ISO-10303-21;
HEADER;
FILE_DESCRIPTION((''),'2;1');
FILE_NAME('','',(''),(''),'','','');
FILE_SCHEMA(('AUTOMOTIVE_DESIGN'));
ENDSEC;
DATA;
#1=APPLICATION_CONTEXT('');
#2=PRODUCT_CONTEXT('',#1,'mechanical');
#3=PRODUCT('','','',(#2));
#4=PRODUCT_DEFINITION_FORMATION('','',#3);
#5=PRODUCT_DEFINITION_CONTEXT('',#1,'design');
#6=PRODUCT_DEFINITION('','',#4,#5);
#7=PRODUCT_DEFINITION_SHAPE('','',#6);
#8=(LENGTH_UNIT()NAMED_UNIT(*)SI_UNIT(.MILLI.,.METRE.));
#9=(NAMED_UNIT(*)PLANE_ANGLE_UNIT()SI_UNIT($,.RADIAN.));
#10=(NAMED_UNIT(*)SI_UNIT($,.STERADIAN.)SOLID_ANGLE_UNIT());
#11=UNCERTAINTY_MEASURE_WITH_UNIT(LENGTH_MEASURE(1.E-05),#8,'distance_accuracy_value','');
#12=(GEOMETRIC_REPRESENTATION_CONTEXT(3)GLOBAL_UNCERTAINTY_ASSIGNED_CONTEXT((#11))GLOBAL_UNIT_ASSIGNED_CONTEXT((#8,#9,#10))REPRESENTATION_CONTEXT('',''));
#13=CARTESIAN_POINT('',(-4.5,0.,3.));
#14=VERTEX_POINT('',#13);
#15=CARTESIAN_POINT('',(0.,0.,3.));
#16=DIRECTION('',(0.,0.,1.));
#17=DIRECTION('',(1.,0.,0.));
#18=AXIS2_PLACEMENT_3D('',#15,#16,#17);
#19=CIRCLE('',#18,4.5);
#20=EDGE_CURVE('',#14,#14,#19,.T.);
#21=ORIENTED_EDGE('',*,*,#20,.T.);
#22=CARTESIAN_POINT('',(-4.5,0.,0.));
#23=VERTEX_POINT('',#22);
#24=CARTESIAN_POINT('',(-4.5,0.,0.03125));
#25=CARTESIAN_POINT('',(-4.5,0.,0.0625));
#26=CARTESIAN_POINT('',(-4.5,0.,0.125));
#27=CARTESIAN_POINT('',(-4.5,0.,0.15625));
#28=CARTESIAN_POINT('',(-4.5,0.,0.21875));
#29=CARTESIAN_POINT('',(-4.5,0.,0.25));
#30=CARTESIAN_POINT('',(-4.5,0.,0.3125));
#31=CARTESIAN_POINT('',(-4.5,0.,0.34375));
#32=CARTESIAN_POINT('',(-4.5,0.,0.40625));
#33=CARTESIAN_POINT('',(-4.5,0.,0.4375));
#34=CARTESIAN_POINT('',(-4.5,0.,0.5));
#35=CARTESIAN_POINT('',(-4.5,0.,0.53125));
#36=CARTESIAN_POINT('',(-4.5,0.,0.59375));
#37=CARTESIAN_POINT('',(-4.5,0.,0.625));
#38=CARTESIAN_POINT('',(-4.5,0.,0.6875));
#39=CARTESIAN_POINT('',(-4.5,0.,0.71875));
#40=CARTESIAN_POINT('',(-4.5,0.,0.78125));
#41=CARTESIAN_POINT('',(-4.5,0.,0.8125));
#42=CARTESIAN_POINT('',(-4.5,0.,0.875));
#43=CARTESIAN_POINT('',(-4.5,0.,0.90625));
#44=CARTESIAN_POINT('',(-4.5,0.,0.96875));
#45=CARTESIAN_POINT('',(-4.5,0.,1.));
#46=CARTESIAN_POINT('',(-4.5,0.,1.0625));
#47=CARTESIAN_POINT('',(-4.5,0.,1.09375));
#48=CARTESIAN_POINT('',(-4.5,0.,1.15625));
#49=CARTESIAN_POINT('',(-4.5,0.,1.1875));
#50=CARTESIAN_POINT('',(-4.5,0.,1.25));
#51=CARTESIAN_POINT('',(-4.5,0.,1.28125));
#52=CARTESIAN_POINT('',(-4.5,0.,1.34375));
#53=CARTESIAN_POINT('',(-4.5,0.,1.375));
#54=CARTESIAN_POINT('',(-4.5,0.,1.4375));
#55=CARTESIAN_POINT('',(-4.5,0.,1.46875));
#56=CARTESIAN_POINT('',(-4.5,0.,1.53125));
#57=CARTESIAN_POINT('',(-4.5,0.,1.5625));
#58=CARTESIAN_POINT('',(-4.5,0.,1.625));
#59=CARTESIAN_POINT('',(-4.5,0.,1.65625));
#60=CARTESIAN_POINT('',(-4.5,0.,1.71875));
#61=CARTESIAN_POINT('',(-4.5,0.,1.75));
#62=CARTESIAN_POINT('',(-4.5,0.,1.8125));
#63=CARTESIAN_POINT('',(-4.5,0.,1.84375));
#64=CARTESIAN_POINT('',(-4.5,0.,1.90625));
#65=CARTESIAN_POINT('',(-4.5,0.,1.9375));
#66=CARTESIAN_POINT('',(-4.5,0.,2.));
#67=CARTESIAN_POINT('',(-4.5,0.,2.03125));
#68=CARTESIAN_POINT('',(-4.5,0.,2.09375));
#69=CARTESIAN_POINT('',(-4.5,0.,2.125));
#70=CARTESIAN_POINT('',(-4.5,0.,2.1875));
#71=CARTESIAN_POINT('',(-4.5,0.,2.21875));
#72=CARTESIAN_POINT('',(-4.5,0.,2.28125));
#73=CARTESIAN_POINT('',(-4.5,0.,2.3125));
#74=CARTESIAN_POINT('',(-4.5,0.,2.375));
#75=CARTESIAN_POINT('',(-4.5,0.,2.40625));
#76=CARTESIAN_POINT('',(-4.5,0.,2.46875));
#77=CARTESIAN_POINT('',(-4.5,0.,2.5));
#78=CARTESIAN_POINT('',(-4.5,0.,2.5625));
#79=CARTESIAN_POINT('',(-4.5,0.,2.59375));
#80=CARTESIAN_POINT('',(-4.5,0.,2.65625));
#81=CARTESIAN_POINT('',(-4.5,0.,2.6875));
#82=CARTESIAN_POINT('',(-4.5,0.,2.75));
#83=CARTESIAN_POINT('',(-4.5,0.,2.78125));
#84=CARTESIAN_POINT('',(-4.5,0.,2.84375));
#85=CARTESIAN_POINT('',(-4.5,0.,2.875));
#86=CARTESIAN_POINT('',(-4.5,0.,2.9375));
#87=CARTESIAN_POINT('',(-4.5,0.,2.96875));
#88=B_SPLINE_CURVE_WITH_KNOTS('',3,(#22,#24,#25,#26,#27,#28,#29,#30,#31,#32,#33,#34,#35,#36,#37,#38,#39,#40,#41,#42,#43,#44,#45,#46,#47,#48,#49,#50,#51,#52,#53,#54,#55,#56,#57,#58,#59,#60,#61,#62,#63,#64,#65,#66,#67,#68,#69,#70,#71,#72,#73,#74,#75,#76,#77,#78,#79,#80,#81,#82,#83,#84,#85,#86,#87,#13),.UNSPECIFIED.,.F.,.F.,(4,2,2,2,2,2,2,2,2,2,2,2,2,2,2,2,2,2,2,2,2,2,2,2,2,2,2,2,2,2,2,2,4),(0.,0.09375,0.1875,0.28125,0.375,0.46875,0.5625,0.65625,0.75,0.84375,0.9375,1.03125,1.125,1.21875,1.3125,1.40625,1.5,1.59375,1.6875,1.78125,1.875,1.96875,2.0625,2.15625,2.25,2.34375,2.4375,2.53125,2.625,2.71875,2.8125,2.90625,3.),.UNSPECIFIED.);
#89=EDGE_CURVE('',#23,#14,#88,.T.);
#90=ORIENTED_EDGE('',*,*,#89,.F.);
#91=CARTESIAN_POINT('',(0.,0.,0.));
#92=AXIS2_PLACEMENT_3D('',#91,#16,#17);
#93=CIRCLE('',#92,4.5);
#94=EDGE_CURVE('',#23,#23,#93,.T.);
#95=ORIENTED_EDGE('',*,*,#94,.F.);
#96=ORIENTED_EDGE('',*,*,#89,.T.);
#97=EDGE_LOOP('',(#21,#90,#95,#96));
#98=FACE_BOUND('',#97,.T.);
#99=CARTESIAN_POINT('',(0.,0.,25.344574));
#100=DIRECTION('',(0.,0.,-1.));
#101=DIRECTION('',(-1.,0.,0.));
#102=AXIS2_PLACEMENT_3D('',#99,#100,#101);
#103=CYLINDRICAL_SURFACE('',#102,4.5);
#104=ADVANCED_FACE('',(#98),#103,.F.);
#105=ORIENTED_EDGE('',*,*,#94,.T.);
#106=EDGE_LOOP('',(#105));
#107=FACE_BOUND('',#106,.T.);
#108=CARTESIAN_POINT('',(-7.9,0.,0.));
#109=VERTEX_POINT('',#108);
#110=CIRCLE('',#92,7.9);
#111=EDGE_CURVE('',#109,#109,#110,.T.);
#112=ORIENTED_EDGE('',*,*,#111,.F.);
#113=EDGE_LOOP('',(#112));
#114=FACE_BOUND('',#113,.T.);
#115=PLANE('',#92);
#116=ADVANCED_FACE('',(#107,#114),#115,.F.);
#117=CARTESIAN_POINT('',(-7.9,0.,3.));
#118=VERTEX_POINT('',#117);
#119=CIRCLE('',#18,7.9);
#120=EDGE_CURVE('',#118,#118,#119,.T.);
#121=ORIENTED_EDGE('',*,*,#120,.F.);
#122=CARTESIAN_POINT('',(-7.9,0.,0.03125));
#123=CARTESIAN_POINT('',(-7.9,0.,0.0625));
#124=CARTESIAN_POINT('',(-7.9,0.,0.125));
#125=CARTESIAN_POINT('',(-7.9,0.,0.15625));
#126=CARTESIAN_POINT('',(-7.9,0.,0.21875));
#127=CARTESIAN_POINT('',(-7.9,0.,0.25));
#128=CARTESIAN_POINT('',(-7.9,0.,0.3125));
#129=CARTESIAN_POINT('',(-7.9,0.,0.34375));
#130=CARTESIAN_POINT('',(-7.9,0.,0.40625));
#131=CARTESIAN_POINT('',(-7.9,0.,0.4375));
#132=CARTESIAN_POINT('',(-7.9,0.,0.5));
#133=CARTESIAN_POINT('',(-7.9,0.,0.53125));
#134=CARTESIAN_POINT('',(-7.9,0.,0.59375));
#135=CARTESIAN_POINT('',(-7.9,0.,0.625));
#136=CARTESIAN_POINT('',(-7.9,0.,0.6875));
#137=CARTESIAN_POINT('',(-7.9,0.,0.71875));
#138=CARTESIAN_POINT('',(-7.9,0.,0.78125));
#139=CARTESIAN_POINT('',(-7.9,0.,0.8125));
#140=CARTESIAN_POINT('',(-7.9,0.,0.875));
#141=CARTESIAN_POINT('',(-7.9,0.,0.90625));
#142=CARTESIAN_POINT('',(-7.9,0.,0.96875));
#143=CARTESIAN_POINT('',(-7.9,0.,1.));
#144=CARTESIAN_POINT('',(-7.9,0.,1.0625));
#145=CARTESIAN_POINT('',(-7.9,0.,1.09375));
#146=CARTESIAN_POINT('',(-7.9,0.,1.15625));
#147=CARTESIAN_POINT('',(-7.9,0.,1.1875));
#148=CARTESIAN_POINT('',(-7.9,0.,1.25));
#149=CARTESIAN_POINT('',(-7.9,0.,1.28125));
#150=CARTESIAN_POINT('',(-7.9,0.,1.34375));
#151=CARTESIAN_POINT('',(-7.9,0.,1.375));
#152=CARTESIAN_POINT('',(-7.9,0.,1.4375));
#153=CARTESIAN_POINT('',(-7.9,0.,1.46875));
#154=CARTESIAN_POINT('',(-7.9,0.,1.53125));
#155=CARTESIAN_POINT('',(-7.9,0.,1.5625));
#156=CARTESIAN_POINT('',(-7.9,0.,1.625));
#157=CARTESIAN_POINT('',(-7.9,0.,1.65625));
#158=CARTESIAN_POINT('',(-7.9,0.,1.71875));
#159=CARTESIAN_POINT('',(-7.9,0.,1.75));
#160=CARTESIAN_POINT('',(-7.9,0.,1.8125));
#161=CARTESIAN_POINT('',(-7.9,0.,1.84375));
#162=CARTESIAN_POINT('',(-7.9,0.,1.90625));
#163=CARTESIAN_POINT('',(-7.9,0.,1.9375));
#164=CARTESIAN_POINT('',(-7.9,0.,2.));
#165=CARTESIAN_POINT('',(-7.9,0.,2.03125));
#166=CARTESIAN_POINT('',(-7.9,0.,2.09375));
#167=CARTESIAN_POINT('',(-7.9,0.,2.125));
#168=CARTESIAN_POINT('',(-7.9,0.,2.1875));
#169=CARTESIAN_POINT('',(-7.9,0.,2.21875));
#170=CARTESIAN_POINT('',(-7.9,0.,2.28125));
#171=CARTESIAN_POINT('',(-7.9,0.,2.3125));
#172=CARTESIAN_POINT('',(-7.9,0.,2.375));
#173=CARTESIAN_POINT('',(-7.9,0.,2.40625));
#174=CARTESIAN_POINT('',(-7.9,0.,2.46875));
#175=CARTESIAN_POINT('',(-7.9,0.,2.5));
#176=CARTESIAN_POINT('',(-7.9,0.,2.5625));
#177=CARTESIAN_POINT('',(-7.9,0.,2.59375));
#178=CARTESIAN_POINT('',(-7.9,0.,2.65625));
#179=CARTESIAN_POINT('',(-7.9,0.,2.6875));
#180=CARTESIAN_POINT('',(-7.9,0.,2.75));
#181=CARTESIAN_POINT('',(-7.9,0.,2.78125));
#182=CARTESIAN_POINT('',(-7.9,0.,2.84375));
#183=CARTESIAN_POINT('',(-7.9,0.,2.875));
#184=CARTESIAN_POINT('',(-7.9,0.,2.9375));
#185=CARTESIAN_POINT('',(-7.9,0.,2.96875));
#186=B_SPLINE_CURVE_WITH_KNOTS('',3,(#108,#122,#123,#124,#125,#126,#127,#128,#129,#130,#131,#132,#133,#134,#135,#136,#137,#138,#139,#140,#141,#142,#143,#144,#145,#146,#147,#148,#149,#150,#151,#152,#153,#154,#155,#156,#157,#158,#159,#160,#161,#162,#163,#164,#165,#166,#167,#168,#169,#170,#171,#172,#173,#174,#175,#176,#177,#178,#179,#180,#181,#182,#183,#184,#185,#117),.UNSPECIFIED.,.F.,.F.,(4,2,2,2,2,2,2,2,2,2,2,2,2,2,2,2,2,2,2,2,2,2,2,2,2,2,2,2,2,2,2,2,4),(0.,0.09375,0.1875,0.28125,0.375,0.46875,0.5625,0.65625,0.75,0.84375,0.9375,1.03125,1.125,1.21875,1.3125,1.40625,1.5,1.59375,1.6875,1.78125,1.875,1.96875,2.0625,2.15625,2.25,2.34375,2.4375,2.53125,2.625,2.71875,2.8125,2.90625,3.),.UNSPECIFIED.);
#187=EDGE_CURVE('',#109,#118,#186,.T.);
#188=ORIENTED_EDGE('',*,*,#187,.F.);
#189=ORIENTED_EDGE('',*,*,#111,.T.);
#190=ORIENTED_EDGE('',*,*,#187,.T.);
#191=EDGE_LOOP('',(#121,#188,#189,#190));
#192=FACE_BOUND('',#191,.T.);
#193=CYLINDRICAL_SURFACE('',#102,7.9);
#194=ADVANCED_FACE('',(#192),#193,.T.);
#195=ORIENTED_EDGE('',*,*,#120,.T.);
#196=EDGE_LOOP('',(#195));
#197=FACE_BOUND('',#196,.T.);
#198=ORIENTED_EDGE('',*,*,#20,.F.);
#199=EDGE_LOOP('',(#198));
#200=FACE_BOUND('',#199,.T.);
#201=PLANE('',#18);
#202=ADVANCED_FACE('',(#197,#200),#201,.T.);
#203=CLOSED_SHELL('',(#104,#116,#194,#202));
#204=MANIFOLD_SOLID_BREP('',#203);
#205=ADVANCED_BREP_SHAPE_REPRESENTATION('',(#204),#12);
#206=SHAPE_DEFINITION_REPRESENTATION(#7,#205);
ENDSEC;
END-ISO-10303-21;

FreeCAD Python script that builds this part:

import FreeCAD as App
import Part
import Sketcher

V = App.Vector
Q = App.Units.Quantity

doc = App.newDocument("Part")
body = doc.addObject("PartDesign::Body", "Body")

# Sketch on XY plane
sketch1 = body.newObject("Sketcher::SketchObject", "Sketch")
sketch1.AttachmentSupport = (doc.getObject("XY_Plane"), [""])
sketch1.MapMode = "FlatFace"
sketch1.addGeometry([
    Part.Circle(V(0, 0, 0), V(0, 0, 1), 7.9),
    Part.Circle(V(0, 0, 0), V(0, 0, 1), 4.5),
], False)
sketch1.addConstraint([
    Sketcher.Constraint("Coincident", 0, 3, -1, 1),
    Sketcher.Constraint("Coincident", 1, 3, -1, 1),
    Sketcher.Constraint("Diameter", 1, Q("9 mm")),
    Sketcher.Constraint("Diameter", 0, Q("15.8 mm")),
])
pad1 = body.newObject("PartDesign::Pad", "Pad")
pad1.Profile = sketch1
pad1.Length = 3

doc.recompute()
